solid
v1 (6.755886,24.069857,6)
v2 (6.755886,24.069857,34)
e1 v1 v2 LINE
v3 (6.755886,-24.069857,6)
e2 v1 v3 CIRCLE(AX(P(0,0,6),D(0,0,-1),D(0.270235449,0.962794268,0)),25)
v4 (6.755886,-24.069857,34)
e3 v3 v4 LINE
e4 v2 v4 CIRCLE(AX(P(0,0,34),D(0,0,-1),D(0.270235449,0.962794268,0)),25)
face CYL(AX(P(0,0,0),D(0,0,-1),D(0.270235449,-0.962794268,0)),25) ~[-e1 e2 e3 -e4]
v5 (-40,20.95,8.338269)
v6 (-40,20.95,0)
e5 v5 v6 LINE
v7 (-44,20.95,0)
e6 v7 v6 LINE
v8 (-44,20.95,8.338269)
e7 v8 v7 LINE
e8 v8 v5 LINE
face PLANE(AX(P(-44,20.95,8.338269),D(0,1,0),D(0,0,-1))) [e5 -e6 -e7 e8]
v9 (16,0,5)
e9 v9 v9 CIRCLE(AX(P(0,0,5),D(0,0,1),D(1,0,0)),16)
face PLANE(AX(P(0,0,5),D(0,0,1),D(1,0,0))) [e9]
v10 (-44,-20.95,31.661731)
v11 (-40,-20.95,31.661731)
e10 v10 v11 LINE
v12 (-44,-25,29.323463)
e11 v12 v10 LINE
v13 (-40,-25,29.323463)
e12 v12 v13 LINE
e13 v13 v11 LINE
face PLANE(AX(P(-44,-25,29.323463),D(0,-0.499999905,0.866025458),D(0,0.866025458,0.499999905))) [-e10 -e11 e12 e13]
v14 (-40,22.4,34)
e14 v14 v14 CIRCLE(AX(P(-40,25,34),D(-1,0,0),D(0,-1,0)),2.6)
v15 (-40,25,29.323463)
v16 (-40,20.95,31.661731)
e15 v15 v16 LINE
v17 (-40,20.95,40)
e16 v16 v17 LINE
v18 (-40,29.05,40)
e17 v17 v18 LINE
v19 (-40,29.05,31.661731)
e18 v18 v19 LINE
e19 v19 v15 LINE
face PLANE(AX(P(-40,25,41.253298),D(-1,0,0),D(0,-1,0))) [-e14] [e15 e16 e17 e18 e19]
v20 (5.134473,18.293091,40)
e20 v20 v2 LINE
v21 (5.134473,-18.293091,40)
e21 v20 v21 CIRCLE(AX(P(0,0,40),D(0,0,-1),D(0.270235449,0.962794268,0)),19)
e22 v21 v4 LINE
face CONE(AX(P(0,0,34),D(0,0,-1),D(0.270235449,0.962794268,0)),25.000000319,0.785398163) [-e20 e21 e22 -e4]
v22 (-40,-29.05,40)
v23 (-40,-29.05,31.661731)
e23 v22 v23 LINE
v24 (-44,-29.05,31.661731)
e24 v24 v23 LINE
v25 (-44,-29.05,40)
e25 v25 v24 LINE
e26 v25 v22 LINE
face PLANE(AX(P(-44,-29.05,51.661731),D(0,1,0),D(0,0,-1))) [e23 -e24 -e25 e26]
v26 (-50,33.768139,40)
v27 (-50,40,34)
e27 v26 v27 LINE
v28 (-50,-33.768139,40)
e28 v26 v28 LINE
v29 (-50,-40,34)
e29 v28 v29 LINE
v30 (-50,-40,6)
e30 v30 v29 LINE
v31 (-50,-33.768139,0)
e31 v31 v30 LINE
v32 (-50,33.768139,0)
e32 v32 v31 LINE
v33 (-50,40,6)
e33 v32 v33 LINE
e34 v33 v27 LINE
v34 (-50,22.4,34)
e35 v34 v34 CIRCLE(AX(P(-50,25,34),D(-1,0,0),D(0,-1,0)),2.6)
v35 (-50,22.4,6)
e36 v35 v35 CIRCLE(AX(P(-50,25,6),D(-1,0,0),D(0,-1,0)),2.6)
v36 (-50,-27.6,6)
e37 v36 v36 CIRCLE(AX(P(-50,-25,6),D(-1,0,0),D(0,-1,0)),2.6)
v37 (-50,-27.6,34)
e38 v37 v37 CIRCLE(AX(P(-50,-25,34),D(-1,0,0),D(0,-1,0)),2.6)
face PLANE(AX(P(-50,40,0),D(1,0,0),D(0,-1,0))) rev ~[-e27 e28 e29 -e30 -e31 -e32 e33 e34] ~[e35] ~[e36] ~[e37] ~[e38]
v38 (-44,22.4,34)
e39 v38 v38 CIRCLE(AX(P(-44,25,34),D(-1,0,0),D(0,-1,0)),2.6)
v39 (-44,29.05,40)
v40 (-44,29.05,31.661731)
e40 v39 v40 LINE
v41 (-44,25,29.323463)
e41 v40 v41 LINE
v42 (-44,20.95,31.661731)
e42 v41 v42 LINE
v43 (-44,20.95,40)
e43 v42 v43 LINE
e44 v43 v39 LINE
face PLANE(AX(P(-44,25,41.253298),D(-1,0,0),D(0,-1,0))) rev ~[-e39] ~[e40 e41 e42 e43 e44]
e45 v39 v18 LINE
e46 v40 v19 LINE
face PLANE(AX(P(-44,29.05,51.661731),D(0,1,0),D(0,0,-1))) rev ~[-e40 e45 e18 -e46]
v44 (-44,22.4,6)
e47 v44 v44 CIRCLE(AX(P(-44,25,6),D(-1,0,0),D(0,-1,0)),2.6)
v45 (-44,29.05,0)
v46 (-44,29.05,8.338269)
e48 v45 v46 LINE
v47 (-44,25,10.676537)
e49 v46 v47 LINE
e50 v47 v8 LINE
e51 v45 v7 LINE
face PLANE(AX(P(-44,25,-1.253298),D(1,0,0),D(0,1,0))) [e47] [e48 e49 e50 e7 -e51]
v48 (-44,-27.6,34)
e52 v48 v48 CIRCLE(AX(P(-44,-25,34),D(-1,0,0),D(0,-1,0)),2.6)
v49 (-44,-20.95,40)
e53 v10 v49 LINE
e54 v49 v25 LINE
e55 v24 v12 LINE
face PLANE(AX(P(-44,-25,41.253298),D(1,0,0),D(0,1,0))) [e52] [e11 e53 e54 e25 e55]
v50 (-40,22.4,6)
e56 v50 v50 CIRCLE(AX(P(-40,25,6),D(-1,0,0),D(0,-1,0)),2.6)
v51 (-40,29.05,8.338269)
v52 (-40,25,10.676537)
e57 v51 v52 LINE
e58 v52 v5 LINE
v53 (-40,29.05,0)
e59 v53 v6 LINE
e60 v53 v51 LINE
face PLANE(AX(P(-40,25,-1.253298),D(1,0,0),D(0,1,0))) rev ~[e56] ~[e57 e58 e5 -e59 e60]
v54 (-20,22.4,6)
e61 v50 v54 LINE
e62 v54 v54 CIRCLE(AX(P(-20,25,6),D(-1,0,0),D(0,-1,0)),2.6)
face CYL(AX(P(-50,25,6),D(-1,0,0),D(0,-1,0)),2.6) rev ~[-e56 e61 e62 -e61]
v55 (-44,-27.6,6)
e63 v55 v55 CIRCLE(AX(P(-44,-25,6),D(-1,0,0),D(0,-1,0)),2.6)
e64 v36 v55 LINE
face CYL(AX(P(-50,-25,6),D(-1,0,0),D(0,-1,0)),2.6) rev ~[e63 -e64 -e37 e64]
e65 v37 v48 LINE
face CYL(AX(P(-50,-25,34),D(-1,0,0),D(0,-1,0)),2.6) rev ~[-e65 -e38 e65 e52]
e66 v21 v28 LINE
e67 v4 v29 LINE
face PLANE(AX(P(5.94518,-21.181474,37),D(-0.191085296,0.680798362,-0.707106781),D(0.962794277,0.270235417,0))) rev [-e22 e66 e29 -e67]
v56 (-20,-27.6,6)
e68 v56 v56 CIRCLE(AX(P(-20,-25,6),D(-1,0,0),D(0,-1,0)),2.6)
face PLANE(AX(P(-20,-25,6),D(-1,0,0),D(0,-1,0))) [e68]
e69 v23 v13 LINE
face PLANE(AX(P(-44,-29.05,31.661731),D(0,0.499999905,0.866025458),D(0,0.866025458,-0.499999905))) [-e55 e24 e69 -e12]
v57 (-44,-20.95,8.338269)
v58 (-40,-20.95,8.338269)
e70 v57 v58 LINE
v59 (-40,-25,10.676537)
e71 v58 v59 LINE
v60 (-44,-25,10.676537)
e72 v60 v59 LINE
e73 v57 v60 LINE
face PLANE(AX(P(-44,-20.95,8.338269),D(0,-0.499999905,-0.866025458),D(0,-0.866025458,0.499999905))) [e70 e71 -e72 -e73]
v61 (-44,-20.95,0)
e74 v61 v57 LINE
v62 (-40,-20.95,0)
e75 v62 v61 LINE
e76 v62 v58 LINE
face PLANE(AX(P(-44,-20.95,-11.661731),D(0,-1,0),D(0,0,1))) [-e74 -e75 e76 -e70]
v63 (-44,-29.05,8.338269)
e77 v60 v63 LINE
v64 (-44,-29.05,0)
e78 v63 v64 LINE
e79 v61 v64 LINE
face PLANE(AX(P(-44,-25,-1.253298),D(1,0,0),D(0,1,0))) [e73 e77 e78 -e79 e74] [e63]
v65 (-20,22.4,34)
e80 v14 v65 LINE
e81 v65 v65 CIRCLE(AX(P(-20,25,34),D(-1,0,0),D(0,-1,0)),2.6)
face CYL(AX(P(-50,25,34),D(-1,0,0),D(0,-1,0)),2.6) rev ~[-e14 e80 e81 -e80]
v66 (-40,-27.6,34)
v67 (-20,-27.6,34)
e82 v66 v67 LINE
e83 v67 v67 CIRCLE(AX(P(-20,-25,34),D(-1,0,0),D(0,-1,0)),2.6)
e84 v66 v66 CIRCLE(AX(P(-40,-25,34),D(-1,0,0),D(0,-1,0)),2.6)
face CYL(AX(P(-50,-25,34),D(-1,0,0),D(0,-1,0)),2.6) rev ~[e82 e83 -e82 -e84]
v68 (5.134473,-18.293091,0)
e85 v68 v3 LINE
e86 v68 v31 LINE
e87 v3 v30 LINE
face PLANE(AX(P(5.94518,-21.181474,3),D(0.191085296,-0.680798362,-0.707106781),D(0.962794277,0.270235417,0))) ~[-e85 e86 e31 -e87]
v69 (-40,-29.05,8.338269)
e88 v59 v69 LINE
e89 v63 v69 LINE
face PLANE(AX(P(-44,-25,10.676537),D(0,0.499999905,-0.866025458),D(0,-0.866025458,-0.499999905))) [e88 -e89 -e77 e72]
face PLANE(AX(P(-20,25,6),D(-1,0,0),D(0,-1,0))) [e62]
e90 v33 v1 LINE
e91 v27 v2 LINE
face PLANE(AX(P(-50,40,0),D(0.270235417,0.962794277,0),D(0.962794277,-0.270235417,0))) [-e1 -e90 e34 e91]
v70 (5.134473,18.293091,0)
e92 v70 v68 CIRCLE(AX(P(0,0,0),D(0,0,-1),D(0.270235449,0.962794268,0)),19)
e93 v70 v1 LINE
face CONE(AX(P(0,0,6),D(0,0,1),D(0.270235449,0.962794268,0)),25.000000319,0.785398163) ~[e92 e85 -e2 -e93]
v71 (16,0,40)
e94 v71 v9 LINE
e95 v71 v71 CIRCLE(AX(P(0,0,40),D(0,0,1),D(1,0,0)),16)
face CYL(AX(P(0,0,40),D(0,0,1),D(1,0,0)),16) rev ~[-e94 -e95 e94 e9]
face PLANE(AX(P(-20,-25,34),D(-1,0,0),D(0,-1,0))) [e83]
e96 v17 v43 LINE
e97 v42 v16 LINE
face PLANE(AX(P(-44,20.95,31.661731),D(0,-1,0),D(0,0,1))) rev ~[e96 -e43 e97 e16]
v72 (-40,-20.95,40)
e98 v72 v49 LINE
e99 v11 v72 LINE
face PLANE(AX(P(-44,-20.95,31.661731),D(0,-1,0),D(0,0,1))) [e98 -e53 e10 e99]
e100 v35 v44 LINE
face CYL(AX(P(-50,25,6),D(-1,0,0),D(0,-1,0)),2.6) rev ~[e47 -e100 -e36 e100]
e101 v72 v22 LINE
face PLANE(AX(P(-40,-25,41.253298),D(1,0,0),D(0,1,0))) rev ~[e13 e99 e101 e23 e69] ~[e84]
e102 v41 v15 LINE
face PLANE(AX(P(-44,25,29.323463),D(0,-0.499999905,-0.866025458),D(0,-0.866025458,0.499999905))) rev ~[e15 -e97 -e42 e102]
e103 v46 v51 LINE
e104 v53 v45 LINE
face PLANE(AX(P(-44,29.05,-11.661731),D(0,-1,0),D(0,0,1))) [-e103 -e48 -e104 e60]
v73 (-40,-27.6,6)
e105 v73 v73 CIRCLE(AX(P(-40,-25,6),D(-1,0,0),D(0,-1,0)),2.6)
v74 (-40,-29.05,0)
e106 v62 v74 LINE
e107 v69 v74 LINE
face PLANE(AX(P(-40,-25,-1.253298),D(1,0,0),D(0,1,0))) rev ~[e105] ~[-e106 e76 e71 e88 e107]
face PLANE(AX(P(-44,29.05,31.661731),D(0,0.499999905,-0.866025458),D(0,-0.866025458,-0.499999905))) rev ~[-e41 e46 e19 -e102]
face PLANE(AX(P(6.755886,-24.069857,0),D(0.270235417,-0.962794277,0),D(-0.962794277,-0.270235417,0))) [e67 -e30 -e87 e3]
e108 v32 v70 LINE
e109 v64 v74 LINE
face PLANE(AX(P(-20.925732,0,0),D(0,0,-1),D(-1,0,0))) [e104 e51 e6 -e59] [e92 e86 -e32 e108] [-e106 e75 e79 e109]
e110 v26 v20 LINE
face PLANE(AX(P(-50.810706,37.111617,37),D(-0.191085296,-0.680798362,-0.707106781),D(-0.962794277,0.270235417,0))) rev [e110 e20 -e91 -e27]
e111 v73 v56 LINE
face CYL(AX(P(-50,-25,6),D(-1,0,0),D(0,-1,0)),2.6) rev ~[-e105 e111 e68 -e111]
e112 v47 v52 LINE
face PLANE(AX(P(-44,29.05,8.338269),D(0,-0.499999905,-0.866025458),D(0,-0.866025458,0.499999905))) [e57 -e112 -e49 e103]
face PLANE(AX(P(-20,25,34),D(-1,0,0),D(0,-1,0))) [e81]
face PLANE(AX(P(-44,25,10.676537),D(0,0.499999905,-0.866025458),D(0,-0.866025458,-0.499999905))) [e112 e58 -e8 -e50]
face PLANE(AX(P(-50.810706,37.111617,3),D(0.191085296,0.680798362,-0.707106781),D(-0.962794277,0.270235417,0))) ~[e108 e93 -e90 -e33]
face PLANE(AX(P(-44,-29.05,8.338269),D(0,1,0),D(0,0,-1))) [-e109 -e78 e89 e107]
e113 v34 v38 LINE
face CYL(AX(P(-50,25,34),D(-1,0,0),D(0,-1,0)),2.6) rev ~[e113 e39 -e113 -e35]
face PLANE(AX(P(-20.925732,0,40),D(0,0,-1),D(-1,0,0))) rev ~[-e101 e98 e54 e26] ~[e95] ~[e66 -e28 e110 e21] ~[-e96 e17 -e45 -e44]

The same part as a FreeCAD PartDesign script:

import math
import FreeCAD as App
import Part
import Sketcher
Q = App.Units.Quantity


def edges_at(feature, points):
    """Names of the edges that pass closest to the given points."""
    edges = feature.Shape.Edges
    near = lambda p: min(range(len(edges)), key=lambda i: edges[i].distToShape(Part.Vertex(*p))[0])
    return sorted({f"Edge{near(p) + 1}" for p in points})


def add_polygon(sketch, points):
    """Adds a closed chain of lines whose ends are joined by coincident constraints."""
    first, n = sketch.GeometryCount, len(points)
    for a, b in zip(points, points[1:] + points[:1]):
        sketch.addGeometry(Part.LineSegment(App.Vector(*a, 0), App.Vector(*b, 0)), False)
    for i in range(n):
        sketch.addConstraint(Sketcher.Constraint("Coincident", first + i, 2, first + (i + 1) % n, 1))

doc = App.newDocument("Part")
body = doc.addObject("PartDesign::Body", "Body")

sketch1 = body.newObject("Sketcher::SketchObject", "Sketch")
sketch1.AttachmentSupport = (doc.getObject("XY_Plane"), [""])
sketch1.MapMode = "FlatFace"
sketch1.addGeometry([
    Part.LineSegment(App.Vector(7, 24, 0), App.Vector(-50, 40, 0)),
    Part.LineSegment(App.Vector(-50, 40, 0), App.Vector(-50, -40, 0)),
    Part.LineSegment(App.Vector(-50, -40, 0), App.Vector(7, -24, 0)),
    Part.ArcOfCircle(Part.Circle(App.Vector(0, 0, 0), App.Vector(0, 0, 1), 25), math.radians(-74), math.radians(74)),
], False)
sketch1.addConstraint([
    Sketcher.Constraint("Coincident", 0, 2, 1, 1),
    Sketcher.Constraint("Coincident", 1, 2, 2, 1),
    Sketcher.Constraint("Tangent", 2, 2, 3, 1),
    Sketcher.Constraint("Tangent", 3, 2, 0, 1),
    Sketcher.Constraint("Vertical", 1),
    Sketcher.Constraint("Coincident", 3, 3, -1, 1),
    Sketcher.Constraint("Vertical", 2, 2, 3, 2),
    Sketcher.Constraint("Radius", 3, Q("25 mm")),
    Sketcher.Constraint("DistanceY", 1, 2, 1, 1, Q("80 mm")),
    Sketcher.Constraint("DistanceX", 0, 2, -1, 1, Q("50 mm")),
])
pad1 = body.newObject("PartDesign::Pad", "Pad")
pad1.Profile = sketch1
pad1.Length = 40

sketch2 = body.newObject("Sketcher::SketchObject", "Sketch001")
sketch2.AttachmentSupport = (doc.getObject("XY_Plane"), [""])
sketch2.MapMode = "FlatFace"
sketch2.AttachmentOffset = App.Placement(App.Vector(0, 0, 40), App.Rotation())
sketch2.addGeometry(Part.Circle(App.Vector(0, 0, 0), App.Vector(0, 0, 1), 16), False)
sketch2.addConstraint([
    Sketcher.Constraint("Coincident", 0, 3, -1, 1),
    Sketcher.Constraint("Diameter", 0, Q("32 mm")),
])
pocket1 = body.newObject("PartDesign::Pocket", "Pocket")
pocket1.Profile = sketch2
pocket1.Length = 35

sketch3 = body.newObject("Sketcher::SketchObject", "Sketch002")
sketch3.AttachmentSupport = (doc.getObject("YZ_Plane"), [""])
sketch3.MapMode = "FlatFace"
sketch3.AttachmentOffset = App.Placement(App.Vector(0, 0, -44), App.Rotation())
add_polygon(sketch3, [(29.1, 31.7), (25, 29.3), (20.9, 31.7), (20.9, 51.7), (29.1, 51.7)])
add_polygon(sketch3, [(-20.9, 31.7), (-25, 29.3), (-29.1, 31.7), (-29.1, 51.7), (-20.9, 51.7)])
add_polygon(sketch3, [(25, 10.7), (29.1, 8.3), (29.1, -11.7), (20.9, -11.7), (20.9, 8.3)])
add_polygon(sketch3, [(-25, 10.7), (-20.9, 8.3), (-20.9, -11.7), (-29.1, -11.7), (-29.1, 8.3)])
sketch3.addConstraint([
    Sketcher.Constraint("Vertical", 2),
    Sketcher.Constraint("Horizontal", 3),
    Sketcher.Constraint("Vertical", 4),
    Sketcher.Constraint("Vertical", 7),
    Sketcher.Constraint("Horizontal", 8),
    Sketcher.Constraint("Vertical", 9),
    Sketcher.Constraint("Vertical", 11),
    Sketcher.Constraint("Horizontal", 12),
    Sketcher.Constraint("Vertical", 13),
    Sketcher.Constraint("Vertical", 16),
    Sketcher.Constraint("Horizontal", 17),
    Sketcher.Constraint("Vertical", 18),
    Sketcher.Constraint("Symmetric", 0, 2, 5, 2, -2),
    Sketcher.Constraint("Symmetric", 4, 2, 6, 2, -2),
    Sketcher.Constraint("Symmetric", 2, 2, 8, 2, -2),
    Sketcher.Constraint("Symmetric", 13, 2, 15, 2, -2),
    Sketcher.Constraint("Symmetric", 11, 2, 17, 2, -2),
    Sketcher.Constraint("Symmetric", 14, 2, 19, 2, -2),
    Sketcher.Constraint("Parallel", 0, 5),
    Sketcher.Constraint("Parallel", 1, 6),
    Sketcher.Constraint("Parallel", 6, 10),
    Sketcher.Constraint("Parallel", 5, 14),
    Sketcher.Constraint("Parallel", 14, 19),
    Sketcher.Constraint("Horizontal", 1, 2, 4, 2),
    Sketcher.Constraint("Horizontal", 10, 2, 13, 2),
    Sketcher.Constraint("Vertical", 4, 2, 10, 2),
    Sketcher.Constraint("Vertical", 2, 2, 12, 2),
    Sketcher.Constraint("Equal", 9, 11),
    Sketcher.Constraint("DistanceY", 2, 1, 2, 2, Q("20 mm")),
    Sketcher.Constraint("Angle", 0, Q("-150.000006 deg")),
    Sketcher.Constraint("DistanceX", 3, 1, 3, 2, Q("8.1 mm")),
    Sketcher.Constraint("DistanceX", -1, 1, 0, 2, Q("25 mm")),
    Sketcher.Constraint("DistanceY", -1, 1, 1, 2, Q("31.661731 mm")),
    Sketcher.Constraint("DistanceY", -1, 1, 10, 2, Q("8.338269 mm")),
])
pocket2 = body.newObject("PartDesign::Pocket", "Pocket001")
pocket2.Profile = sketch3
pocket2.Length = 4
pocket2.Reversed = True

sketch4 = body.newObject("Sketcher::SketchObject", "Sketch003")
sketch4.AttachmentSupport = (doc.getObject("YZ_Plane"), [""])
sketch4.MapMode = "FlatFace"
sketch4.AttachmentOffset = App.Placement(App.Vector(0, 0, -50), App.Rotation())
sketch4.addGeometry([
    Part.Circle(App.Vector(-25, 34, 0), App.Vector(0, 0, 1), 2.6),
    Part.Circle(App.Vector(25, 6, 0), App.Vector(0, 0, 1), 2.6),
    Part.Circle(App.Vector(-25, 6, 0), App.Vector(0, 0, 1), 2.6),
    Part.Circle(App.Vector(25, 34, 0), App.Vector(0, 0, 1), 2.6),
], False)
sketch4.addConstraint([
    Sketcher.Constraint("Equal", 0, 1),
    Sketcher.Constraint("Equal", 1, 2),
    Sketcher.Constraint("Equal", 2, 3),
    Sketcher.Constraint("Symmetric", 1, 3, 2, 3, -2),
    Sketcher.Constraint("Symmetric", 0, 3, 3, 3, -2),
    Sketcher.Constraint("Vertical", 0, 3, 2, 3),
    Sketcher.Constraint("Diameter", 0, Q("5.2 mm")),
    Sketcher.Constraint("DistanceX", 0, 3, -1, 1, Q("25 mm")),
    Sketcher.Constraint("DistanceY", -1, 1, 0, 3, Q("34 mm")),
    Sketcher.Constraint("DistanceY", -1, 1, 1, 3, Q("6 mm")),
])
pocket3 = body.newObject("PartDesign::Pocket", "Pocket002")
pocket3.Profile = sketch4
pocket3.Length = 30
pocket3.Reversed = True
doc.recompute()

chamfer = body.newObject("PartDesign::Chamfer", "Chamfer")
chamfer.Base = (pocket3, edges_at(pocket3, [(-21.622, -32.035, 40), (-21.622, -32.035, 0)]))
chamfer.Size = 6

doc.recompute()
